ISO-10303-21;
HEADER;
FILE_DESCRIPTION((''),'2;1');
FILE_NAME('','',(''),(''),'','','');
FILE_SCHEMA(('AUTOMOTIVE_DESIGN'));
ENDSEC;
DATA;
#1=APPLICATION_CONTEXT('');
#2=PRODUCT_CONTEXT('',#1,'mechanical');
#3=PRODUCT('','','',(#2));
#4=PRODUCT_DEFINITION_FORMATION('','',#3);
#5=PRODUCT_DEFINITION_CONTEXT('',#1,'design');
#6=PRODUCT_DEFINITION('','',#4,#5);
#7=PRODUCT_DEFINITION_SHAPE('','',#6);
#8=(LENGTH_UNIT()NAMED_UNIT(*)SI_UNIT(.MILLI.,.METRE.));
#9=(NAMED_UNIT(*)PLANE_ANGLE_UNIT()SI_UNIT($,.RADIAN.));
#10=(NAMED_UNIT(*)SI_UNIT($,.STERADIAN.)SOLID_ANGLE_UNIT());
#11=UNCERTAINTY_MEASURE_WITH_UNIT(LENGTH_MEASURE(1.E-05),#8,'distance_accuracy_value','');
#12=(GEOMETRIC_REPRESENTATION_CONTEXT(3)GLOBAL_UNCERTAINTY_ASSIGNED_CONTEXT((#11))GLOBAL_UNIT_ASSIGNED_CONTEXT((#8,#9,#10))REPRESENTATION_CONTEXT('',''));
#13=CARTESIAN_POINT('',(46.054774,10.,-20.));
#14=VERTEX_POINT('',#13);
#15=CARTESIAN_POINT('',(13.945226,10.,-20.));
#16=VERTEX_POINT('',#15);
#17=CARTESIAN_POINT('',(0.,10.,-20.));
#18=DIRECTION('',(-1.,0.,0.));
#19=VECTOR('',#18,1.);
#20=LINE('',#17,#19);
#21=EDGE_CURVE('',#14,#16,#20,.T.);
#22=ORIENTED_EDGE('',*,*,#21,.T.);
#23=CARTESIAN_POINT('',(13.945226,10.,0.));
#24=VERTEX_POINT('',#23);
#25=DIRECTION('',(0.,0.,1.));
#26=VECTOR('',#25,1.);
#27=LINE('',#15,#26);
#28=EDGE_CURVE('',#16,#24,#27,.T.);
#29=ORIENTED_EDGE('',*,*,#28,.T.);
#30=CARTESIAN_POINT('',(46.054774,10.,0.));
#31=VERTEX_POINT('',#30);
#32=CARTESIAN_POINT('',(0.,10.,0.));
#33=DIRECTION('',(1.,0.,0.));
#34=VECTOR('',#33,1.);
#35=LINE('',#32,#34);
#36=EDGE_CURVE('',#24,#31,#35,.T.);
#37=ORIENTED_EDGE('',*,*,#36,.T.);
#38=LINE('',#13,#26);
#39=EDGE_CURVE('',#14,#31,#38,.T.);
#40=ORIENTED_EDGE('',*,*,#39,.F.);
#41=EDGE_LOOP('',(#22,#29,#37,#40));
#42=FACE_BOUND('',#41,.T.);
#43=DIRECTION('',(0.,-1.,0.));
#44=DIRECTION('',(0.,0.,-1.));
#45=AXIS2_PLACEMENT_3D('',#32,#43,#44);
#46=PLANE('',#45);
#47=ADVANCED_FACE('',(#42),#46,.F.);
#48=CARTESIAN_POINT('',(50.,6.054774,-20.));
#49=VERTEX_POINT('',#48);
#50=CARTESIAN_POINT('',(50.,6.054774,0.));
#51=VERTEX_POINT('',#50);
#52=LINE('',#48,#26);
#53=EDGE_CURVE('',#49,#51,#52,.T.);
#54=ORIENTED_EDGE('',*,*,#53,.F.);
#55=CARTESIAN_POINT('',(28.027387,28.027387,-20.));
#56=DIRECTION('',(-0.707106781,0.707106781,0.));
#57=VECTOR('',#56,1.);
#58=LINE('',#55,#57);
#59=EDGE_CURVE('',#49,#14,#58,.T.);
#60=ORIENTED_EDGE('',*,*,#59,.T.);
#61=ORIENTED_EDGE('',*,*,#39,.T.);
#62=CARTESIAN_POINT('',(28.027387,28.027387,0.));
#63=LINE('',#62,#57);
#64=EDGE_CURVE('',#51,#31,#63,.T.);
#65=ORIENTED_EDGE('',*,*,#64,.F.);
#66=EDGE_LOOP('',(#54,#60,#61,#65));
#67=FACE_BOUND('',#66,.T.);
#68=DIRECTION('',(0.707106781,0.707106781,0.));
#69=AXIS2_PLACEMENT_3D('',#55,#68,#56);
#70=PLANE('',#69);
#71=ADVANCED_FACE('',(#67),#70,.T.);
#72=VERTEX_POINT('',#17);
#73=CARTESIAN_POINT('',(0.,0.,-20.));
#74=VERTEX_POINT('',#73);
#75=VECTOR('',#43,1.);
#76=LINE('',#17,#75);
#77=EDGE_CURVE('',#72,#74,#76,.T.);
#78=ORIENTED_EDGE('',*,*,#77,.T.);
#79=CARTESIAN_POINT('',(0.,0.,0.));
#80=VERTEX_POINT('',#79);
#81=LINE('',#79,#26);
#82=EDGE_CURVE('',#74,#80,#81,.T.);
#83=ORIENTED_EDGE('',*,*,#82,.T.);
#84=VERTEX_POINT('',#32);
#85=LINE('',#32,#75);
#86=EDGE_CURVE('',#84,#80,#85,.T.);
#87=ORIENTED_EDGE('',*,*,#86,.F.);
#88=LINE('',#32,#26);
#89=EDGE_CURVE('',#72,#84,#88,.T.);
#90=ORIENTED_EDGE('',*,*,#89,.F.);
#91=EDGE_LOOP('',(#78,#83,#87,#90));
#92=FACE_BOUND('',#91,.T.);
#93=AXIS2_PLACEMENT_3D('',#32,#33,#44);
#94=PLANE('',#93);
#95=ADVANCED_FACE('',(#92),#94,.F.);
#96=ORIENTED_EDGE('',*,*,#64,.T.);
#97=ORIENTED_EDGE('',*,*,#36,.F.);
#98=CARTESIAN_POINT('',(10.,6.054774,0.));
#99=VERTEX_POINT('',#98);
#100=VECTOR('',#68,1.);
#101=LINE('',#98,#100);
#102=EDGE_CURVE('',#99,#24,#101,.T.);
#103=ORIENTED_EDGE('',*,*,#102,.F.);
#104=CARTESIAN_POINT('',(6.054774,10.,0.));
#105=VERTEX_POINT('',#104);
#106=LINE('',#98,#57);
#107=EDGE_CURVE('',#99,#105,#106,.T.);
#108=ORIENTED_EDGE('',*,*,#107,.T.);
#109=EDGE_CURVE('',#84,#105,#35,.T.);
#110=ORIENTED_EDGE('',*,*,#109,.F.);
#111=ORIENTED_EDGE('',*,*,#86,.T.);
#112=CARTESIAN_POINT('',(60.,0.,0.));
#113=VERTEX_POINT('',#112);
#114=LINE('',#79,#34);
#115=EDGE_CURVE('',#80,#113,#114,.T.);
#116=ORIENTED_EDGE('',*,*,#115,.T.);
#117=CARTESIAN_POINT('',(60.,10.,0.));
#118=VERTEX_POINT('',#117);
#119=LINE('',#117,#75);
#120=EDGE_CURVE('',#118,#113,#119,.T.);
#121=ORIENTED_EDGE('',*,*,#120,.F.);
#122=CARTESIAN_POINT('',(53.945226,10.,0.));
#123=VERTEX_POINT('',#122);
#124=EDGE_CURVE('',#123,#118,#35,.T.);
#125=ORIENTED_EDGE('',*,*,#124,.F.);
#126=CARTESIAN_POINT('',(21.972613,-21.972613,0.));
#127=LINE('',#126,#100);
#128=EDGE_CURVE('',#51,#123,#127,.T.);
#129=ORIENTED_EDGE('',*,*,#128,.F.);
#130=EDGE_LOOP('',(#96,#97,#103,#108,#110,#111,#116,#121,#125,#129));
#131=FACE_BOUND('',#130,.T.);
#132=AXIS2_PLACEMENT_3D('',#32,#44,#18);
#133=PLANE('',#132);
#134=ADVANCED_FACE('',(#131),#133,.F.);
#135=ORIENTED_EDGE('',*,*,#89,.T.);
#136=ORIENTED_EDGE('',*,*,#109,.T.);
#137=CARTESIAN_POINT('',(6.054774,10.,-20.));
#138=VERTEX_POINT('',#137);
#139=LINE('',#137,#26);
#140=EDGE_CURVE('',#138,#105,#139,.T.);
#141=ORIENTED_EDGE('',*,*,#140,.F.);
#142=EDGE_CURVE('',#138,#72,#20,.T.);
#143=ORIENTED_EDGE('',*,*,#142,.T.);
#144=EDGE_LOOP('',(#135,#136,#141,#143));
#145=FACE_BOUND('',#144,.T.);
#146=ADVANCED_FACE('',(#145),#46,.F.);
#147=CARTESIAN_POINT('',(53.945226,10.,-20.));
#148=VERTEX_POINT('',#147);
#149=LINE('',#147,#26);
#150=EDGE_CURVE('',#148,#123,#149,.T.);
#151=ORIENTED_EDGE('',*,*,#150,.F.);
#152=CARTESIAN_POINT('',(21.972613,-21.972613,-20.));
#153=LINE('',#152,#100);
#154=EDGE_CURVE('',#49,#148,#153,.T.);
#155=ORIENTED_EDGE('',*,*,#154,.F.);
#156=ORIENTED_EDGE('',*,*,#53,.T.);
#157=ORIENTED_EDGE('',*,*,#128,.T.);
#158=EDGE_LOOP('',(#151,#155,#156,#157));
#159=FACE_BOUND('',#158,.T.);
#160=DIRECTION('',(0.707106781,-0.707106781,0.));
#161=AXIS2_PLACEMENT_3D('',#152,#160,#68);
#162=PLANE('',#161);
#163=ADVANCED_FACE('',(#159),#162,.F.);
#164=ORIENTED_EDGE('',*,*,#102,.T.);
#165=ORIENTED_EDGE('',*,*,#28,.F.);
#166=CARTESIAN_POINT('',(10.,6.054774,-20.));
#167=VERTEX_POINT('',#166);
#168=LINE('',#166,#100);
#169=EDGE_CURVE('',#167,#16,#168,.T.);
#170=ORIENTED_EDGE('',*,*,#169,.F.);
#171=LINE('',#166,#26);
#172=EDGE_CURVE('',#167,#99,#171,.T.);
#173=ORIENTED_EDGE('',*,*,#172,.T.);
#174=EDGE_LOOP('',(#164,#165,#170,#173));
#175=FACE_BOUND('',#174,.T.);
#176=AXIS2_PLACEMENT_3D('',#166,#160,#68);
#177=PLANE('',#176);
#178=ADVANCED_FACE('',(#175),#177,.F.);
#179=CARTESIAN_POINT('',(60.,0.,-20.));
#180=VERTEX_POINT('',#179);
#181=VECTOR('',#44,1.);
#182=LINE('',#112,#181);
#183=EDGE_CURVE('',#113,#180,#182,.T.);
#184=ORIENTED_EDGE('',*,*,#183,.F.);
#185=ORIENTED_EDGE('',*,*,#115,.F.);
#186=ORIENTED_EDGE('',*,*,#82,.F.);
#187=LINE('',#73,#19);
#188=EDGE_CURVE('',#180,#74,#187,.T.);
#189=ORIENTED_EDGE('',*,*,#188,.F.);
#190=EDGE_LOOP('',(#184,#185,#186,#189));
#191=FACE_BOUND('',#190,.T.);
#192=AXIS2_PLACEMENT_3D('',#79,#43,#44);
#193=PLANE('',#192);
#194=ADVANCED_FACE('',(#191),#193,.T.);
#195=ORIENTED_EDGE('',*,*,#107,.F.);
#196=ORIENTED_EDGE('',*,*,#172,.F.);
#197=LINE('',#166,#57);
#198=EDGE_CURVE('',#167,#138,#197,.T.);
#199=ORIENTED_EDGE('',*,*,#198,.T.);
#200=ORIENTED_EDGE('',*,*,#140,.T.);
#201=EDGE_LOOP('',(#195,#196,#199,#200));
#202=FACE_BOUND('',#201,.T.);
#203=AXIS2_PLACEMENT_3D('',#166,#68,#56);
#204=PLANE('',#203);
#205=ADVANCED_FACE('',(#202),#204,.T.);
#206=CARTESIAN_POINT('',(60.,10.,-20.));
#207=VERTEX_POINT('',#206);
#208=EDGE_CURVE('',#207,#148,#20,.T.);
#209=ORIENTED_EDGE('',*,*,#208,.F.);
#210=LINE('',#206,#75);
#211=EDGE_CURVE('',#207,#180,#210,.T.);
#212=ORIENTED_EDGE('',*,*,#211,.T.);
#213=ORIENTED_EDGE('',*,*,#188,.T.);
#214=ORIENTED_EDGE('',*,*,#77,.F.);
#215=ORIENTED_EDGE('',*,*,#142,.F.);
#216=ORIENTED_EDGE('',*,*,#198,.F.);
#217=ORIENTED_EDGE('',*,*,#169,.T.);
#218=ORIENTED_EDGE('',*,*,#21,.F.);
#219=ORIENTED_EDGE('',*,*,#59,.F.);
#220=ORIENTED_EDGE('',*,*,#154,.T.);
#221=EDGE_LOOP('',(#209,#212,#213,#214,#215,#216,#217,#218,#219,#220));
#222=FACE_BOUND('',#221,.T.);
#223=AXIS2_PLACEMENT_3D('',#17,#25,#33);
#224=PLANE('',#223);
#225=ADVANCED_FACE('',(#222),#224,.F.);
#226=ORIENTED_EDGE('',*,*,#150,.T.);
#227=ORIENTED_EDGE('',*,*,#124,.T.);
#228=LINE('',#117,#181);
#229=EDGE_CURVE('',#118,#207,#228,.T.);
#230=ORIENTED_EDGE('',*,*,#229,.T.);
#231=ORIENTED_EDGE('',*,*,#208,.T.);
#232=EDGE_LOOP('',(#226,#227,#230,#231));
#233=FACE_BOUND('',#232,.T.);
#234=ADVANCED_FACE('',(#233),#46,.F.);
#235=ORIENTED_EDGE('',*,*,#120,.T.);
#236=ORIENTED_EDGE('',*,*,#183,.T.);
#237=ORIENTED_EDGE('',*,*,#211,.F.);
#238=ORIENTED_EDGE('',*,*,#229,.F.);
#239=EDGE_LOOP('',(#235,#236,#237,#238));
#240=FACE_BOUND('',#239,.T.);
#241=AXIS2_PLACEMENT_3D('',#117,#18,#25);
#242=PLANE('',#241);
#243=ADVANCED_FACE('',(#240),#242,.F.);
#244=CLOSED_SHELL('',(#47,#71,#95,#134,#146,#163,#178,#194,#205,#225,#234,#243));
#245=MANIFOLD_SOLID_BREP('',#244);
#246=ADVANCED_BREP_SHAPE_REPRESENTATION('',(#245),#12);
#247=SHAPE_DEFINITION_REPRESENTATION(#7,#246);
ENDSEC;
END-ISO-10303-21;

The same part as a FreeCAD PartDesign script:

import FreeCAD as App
import Part
import Sketcher

V = App.Vector


def add_polygon(sketch, points):
    """Adds a closed chain of lines whose ends are joined by coincident constraints."""
    first, n = sketch.GeometryCount, len(points)
    for a, b in zip(points, points[1:] + points[:1]):
        sketch.addGeometry(Part.LineSegment(App.Vector(*a, 0), App.Vector(*b, 0)), False)
    for i in range(n):
        sketch.addConstraint(Sketcher.Constraint("Coincident", first + i, 2, first + (i + 1) % n, 1))

doc = App.newDocument("Part")
body = doc.addObject("PartDesign::Body", "Body")

# Sketch on XZ plane
sketch1 = body.newObject("Sketcher::SketchObject", "Sketch")
sketch1.AttachmentSupport = (doc.getObject("XZ_Plane"), [""])
sketch1.MapMode = "FlatFace"
add_polygon(sketch1, [(0, -20), (0, 0), (60, 0), (60, -20)])  # lines 0-3
sketch1.addConstraint([
    Sketcher.Constraint("Vertical", 0),
    Sketcher.Constraint("Horizontal", 1),
    Sketcher.Constraint("Vertical", 2),
    Sketcher.Constraint("Horizontal", 3),
    Sketcher.Constraint("Coincident", 0, 2, -1, 1),
    Sketcher.Constraint("DistanceX", 1, 1, 1, 2, 60.0),
    Sketcher.Constraint("DistanceY", 0, 1, 0, 2, 20.0),
])
pad1 = body.newObject("PartDesign::Pad", "Pad")
pad1.Profile = sketch1
pad1.Length = 10
pad1.Reversed = True

# Sketch on XY plane
sketch2 = body.newObject("Sketcher::SketchObject", "Sketch001")
sketch2.AttachmentSupport = (doc.getObject("XY_Plane"), [""])
sketch2.MapMode = "FlatFace"
add_polygon(sketch2, [(14, 10), (6, 10), (10, 6)])  # lines 0-2
add_polygon(sketch2, [(46, 10), (50, 6), (54, 10)])  # lines 3-5
sketch2.addConstraint([
    Sketcher.Constraint("Horizontal", 0),
    Sketcher.Constraint("Horizontal", 5),
    Sketcher.Constraint("Perpendicular", 1, 2),
    Sketcher.Constraint("Perpendicular", 2, 3),
    Sketcher.Constraint("Perpendicular", 3, 4),
    Sketcher.Constraint("Horizontal", 1, 2, 3, 2),
    Sketcher.Constraint("Horizontal", 2, 2, 4, 2),
    Sketcher.Constraint("Equal", 1, 2),
    Sketcher.Constraint("DistanceY", -1, 1, 0, 2, 10.0),
    Sketcher.Constraint("DistanceX", -1, 1, 1, 2, 10.0),
    Sketcher.Constraint("DistanceX", -1, 1, 3, 2, 50.0),
    Sketcher.Constraint("DistanceX", 0, 2, 0, 1, 7.890453),
])
pocket1 = body.newObject("PartDesign::Pocket", "Pocket")
pocket1.Profile = sketch2
pocket1.Type = "ThroughAll"

doc.recompute()
